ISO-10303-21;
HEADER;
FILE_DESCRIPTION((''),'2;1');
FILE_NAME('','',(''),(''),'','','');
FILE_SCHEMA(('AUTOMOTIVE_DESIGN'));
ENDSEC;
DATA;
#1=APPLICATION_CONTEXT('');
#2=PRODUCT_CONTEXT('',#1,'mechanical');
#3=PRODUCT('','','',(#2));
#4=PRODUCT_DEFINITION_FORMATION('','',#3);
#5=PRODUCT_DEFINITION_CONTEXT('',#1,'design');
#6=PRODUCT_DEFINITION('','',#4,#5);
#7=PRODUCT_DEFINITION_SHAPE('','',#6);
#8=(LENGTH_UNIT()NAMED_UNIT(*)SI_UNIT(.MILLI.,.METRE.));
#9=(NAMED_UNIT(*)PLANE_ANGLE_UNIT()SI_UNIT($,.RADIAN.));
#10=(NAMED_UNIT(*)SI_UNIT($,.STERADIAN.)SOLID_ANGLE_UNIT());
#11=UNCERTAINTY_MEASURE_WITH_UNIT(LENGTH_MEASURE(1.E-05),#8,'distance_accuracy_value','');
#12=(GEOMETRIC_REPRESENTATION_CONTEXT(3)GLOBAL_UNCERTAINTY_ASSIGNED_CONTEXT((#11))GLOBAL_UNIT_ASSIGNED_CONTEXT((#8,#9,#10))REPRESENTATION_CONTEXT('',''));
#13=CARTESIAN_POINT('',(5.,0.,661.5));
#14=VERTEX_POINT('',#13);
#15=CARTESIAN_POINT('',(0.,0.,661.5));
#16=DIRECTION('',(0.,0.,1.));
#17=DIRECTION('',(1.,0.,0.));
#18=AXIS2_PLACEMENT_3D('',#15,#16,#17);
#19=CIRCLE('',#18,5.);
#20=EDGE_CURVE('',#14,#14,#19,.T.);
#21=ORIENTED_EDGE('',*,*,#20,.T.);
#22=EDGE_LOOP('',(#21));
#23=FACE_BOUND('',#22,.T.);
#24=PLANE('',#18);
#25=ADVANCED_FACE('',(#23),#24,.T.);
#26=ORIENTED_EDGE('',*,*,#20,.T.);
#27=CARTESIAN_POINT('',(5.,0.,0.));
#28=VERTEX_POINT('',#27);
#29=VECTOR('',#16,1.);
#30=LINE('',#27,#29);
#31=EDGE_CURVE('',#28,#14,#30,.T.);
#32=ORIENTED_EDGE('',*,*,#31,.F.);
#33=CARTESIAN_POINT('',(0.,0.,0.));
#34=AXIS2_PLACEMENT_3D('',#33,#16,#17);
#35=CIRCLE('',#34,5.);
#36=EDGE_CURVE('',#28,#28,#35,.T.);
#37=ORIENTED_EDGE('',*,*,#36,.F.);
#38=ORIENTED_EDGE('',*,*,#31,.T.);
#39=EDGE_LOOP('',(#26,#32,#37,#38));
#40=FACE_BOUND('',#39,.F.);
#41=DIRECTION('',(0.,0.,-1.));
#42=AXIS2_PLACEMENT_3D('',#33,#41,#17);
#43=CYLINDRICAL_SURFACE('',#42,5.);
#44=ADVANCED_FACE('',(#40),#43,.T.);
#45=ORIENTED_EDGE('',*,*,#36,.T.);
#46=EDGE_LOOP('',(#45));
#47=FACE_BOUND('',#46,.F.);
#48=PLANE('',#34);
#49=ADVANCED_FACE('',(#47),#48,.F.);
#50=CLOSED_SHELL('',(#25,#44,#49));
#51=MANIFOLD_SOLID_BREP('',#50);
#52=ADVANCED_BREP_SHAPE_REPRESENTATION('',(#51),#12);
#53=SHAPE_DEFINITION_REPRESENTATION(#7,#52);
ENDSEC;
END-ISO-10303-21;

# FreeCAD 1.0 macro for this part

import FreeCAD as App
import Part
import Sketcher

doc = App.newDocument("Part")
body = doc.addObject("PartDesign::Body", "Body")

# Sketch on XY plane
sketch1 = doc.addObject("Sketcher::SketchObject", "Sketch")
body.addObject(sketch1)
sketch1.AttachmentSupport = (doc.XY_Plane, [""])
sketch1.MapMode = "FlatFace"
sketch1.addGeometry(Part.Circle(App.Vector(0, 0, 0), App.Vector(0, 0, 1), 5), False)
sketch1.addConstraint([
    Sketcher.Constraint("Coincident", 0, 3, -1, 1),
    Sketcher.Constraint("Diameter", 0, 10.0),
])
pad1 = doc.addObject("PartDesign::Pad", "Pad")
body.addObject(pad1)
pad1.Profile = sketch1
pad1.Length = 661.5

doc.recompute()
